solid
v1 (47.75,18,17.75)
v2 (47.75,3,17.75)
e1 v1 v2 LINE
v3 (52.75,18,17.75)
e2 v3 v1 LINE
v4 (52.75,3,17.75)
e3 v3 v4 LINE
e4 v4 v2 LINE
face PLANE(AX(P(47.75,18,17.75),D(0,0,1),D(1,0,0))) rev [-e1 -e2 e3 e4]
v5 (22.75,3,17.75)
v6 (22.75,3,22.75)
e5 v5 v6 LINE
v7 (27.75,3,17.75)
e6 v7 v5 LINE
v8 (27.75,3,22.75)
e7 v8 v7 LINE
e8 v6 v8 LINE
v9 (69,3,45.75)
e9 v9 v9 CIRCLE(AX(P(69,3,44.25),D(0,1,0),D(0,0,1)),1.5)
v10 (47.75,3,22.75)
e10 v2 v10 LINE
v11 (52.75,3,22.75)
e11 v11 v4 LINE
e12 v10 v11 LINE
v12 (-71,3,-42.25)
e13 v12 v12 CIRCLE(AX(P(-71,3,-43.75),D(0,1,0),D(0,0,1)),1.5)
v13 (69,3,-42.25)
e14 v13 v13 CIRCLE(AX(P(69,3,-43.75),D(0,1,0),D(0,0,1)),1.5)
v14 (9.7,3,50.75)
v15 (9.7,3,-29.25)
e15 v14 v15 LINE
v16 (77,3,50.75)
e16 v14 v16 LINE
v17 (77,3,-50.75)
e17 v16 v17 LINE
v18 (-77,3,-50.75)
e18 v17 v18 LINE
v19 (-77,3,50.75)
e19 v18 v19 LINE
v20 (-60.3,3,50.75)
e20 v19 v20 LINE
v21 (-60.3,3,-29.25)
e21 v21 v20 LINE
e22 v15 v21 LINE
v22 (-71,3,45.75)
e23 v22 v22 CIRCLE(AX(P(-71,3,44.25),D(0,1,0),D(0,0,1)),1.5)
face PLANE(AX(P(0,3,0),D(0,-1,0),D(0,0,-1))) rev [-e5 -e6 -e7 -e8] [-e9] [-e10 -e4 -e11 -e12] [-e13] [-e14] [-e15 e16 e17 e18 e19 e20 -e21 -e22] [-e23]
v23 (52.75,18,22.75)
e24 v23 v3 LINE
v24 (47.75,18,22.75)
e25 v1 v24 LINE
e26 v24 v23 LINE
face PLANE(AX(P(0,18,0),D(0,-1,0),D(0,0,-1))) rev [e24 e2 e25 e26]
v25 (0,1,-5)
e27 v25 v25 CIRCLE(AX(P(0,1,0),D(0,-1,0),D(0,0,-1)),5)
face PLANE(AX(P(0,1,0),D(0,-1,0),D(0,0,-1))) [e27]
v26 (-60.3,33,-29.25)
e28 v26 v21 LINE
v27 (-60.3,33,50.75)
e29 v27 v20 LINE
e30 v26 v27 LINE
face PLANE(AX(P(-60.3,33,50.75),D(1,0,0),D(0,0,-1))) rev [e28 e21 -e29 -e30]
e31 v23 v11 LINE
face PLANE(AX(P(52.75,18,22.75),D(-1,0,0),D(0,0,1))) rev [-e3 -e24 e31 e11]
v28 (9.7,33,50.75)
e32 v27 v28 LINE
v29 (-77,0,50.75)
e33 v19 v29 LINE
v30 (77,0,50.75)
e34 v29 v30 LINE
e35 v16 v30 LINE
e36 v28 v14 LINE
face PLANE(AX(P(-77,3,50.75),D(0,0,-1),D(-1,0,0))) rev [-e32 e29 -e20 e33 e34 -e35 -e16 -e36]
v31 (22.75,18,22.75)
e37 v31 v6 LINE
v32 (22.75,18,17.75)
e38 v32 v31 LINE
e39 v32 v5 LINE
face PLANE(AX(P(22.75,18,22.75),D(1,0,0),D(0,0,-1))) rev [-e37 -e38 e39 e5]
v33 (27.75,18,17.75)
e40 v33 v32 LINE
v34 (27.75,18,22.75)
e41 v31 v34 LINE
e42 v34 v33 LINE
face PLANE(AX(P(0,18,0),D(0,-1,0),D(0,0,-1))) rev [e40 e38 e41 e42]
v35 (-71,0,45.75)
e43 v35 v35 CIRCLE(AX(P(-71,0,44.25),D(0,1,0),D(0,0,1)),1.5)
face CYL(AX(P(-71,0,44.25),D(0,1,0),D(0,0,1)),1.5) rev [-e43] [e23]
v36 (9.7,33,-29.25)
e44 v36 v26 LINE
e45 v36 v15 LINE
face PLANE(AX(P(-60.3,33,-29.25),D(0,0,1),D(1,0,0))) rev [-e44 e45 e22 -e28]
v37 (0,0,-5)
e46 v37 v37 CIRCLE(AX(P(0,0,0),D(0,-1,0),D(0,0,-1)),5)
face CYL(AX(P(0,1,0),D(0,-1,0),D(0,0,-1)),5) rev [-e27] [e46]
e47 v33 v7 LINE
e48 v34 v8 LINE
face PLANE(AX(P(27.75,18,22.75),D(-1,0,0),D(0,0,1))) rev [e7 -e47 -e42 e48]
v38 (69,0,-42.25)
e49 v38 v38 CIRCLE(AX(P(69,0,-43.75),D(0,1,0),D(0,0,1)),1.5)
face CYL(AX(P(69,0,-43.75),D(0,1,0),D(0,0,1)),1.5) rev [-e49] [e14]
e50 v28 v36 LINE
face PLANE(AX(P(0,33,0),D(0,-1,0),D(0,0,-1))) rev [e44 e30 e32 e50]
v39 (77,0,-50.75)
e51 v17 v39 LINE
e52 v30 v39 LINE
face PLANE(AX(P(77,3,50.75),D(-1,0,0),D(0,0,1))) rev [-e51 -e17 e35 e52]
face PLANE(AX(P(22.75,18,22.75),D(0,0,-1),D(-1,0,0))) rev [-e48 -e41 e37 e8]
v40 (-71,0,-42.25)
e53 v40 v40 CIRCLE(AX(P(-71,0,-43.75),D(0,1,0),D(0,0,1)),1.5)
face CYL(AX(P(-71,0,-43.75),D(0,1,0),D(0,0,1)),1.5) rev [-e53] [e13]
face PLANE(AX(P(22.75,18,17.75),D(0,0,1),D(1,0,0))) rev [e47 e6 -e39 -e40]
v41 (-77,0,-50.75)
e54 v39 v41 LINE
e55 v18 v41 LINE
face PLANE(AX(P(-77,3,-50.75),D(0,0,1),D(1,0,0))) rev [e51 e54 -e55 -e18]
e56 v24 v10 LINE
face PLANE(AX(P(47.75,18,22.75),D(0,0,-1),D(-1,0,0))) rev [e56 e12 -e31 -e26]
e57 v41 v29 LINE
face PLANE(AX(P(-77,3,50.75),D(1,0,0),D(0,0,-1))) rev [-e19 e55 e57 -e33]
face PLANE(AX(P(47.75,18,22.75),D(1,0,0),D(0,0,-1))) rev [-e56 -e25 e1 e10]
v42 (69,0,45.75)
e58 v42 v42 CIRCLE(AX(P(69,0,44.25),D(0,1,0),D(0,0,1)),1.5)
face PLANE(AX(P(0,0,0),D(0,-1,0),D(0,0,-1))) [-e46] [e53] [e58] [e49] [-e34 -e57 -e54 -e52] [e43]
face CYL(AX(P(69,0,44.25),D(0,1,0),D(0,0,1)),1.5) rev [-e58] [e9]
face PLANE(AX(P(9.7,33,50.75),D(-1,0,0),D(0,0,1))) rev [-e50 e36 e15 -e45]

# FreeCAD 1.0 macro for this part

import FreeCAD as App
import Part
import Sketcher
from FreeCAD import Vector

doc = App.newDocument("Part")
body = doc.addObject("PartDesign::Body", "Body")

# Sketch on XZ plane
sketch1 = body.newObject("Sketcher::SketchObject", "Sketch")
sketch1.AttachmentSupport = (doc.getObject("XZ_Plane"), [""])
sketch1.MapMode = "FlatFace"
sketch1.addGeometry([
    Part.LineSegment(Vector(-77, -51, 0), Vector(-77, 51, 0)),
    Part.LineSegment(Vector(-77, 51, 0), Vector(77, 51, 0)),
    Part.LineSegment(Vector(77, 51, 0), Vector(77, -51, 0)),
    Part.LineSegment(Vector(77, -51, 0), Vector(-77, -51, 0)),
], False)
sketch1.addConstraint([
    Sketcher.Constraint("Coincident", 0, 2, 1, 1),
    Sketcher.Constraint("Coincident", 1, 2, 2, 1),
    Sketcher.Constraint("Coincident", 2, 2, 3, 1),
    Sketcher.Constraint("Coincident", 3, 2, 0, 1),
    Sketcher.Constraint("Vertical", 0),
    Sketcher.Constraint("Horizontal", 1),
    Sketcher.Constraint("Vertical", 2),
    Sketcher.Constraint("Horizontal", 3),
    Sketcher.Constraint("Symmetric", 0, 2, 2, 2, -1, 1),
    Sketcher.Constraint("DistanceX", 1, 1, 1, 2, 154.0),
    Sketcher.Constraint("DistanceY", 0, 1, 0, 2, 101.5),
])
pad1 = body.newObject("PartDesign::Pad", "Pad")
pad1.Profile = sketch1
pad1.Length = 3
pad1.Reversed = True

# Sketch on XZ plane
sketch2 = body.newObject("Sketcher::SketchObject", "Sketch001")
sketch2.AttachmentSupport = (doc.getObject("XZ_Plane"), [""])
sketch2.MapMode = "FlatFace"
sketch2.AttachmentOffset = App.Placement(Vector(0, 0, -3), App.Rotation())
sketch2.addGeometry([
    Part.Circle(Vector(-71, -43.8, 0), Vector(0, 0, 1), 1.5),
    Part.Circle(Vector(69, -43.8, 0), Vector(0, 0, 1), 1.5),
    Part.Circle(Vector(-71, 44.2, 0), Vector(0, 0, 1), 1.5),
    Part.Circle(Vector(69, 44.2, 0), Vector(0, 0, 1), 1.5),
], False)
sketch2.addConstraint([
    Sketcher.Constraint("Equal", 0, 1),
    Sketcher.Constraint("Equal", 1, 2),
    Sketcher.Constraint("Equal", 2, 3),
    Sketcher.Constraint("Horizontal", 0, 3, 1, 3),
    Sketcher.Constraint("Horizontal", 2, 3, 3, 3),
    Sketcher.Constraint("Vertical", 0, 3, 2, 3),
    Sketcher.Constraint("Vertical", 1, 3, 3, 3),
    Sketcher.Constraint("Diameter", 0, 3.0),
    Sketcher.Constraint("DistanceX", 0, 3, -1, 1, 71.0),
    Sketcher.Constraint("DistanceX", -1, 1, 1, 3, 69.0),
    Sketcher.Constraint("DistanceY", 0, 3, 2, 3, 88.0),
    Sketcher.Constraint("DistanceY", 0, 3, -1, 1, 43.75),
])
pocket1 = body.newObject("PartDesign::Pocket", "Pocket")
pocket1.Profile = sketch2
pocket1.Length = 3
pocket1.Reversed = True

# Sketch on XZ plane
sketch3 = body.newObject("Sketcher::SketchObject", "Sketch002")
sketch3.AttachmentSupport = (doc.getObject("XZ_Plane"), [""])
sketch3.MapMode = "FlatFace"
sketch3.AttachmentOffset = App.Placement(Vector(0, 0, -3), App.Rotation())
sketch3.addGeometry([
    Part.LineSegment(Vector(-60, -29, 0), Vector(-60, 51, 0)),
    Part.LineSegment(Vector(-60, 51, 0), Vector(10, 51, 0)),
    Part.LineSegment(Vector(10, 51, 0), Vector(10, -29, 0)),
    Part.LineSegment(Vector(10, -29, 0), Vector(-60, -29, 0)),
], False)
sketch3.addConstraint([
    Sketcher.Constraint("Coincident", 0, 2, 1, 1),
    Sketcher.Constraint("Coincident", 1, 2, 2, 1),
    Sketcher.Constraint("Coincident", 2, 2, 3, 1),
    Sketcher.Constraint("Coincident", 3, 2, 0, 1),
    Sketcher.Constraint("Vertical", 0),
    Sketcher.Constraint("Horizontal", 1),
    Sketcher.Constraint("Vertical", 2),
    Sketcher.Constraint("Horizontal", 3),
    Sketcher.Constraint("DistanceX", 1, 1, 1, 2, 70.0),
    Sketcher.Constraint("DistanceY", 0, 1, 0, 2, 80.0),
    Sketcher.Constraint("DistanceX", 0, 2, -1, 1, 60.3),
    Sketcher.Constraint("DistanceY", -1, 1, 0, 2, 50.75),
])
pad2 = body.newObject("PartDesign::Pad", "Pad001")
pad2.Profile = sketch3
pad2.Length = 30
pad2.Reversed = True

# Sketch on XZ plane
sketch4 = body.newObject("Sketcher::SketchObject", "Sketch003")
sketch4.AttachmentSupport = (doc.getObject("XZ_Plane"), [""])
sketch4.MapMode = "FlatFace"
sketch4.AttachmentOffset = App.Placement(Vector(0, 0, -3), App.Rotation())
sketch4.addGeometry([
    Part.LineSegment(Vector(23, 18, 0), Vector(23, 23, 0)),  # 0
    Part.LineSegment(Vector(23, 23, 0), Vector(28, 23, 0)),  # 1
    Part.LineSegment(Vector(28, 23, 0), Vector(28, 18, 0)),  # 2
    Part.LineSegment(Vector(28, 18, 0), Vector(23, 18, 0)),  # 3
    Part.LineSegment(Vector(48, 18, 0), Vector(48, 23, 0)),  # 4
    Part.LineSegment(Vector(48, 23, 0), Vector(53, 23, 0)),  # 5
    Part.LineSegment(Vector(53, 23, 0), Vector(53, 18, 0)),  # 6
    Part.LineSegment(Vector(53, 18, 0), Vector(48, 18, 0)),  # 7
], False)
sketch4.addConstraint([
    Sketcher.Constraint("Coincident", 0, 2, 1, 1),
    Sketcher.Constraint("Coincident", 1, 2, 2, 1),
    Sketcher.Constraint("Coincident", 2, 2, 3, 1),
    Sketcher.Constraint("Coincident", 3, 2, 0, 1),
    Sketcher.Constraint("Coincident", 4, 2, 5, 1),
    Sketcher.Constraint("Coincident", 5, 2, 6, 1),
    Sketcher.Constraint("Coincident", 6, 2, 7, 1),
    Sketcher.Constraint("Coincident", 7, 2, 4, 1),
    Sketcher.Constraint("Vertical", 0),
    Sketcher.Constraint("Horizontal", 1),
    Sketcher.Constraint("Vertical", 2),
    Sketcher.Constraint("Horizontal", 3),
    Sketcher.Constraint("Vertical", 4),
    Sketcher.Constraint("Horizontal", 5),
    Sketcher.Constraint("Vertical", 6),
    Sketcher.Constraint("Horizontal", 7),
    Sketcher.Constraint("Horizontal", 1, 2, 4, 2),
    Sketcher.Constraint("Horizontal", 3, 2, 6, 2),
    Sketcher.Constraint("Equal", 3, 5),
    Sketcher.Constraint("Equal", 7, 0),
    Sketcher.Constraint("DistanceX", 1, 1, 1, 2, 5.0),
    Sketcher.Constraint("DistanceX", 1, 2, 4, 2, 20.0),
    Sketcher.Constraint("DistanceX", -1, 1, 0, 2, 22.75),
    Sketcher.Constraint("DistanceY", -1, 1, 0, 2, 22.75),
])
pad3 = body.newObject("PartDesign::Pad", "Pad002")
pad3.Profile = sketch4
pad3.Length = 15
pad3.Reversed = True

# Sketch on XZ plane
sketch5 = body.newObject("Sketcher::SketchObject", "Sketch004")
sketch5.AttachmentSupport = (doc.getObject("XZ_Plane"), [""])
sketch5.MapMode = "FlatFace"
sketch5.addGeometry(Part.Circle(Vector(0, 0, 0), Vector(0, 0, 1), 5), False)
sketch5.addConstraint([
    Sketcher.Constraint("Coincident", 0, 3, -1, 1),
    Sketcher.Constraint("Diameter", 0, 10.0),
])
pocket2 = body.newObject("PartDesign::Pocket", "Pocket001")
pocket2.Profile = sketch5
pocket2.Length = 1

doc.recompute()
